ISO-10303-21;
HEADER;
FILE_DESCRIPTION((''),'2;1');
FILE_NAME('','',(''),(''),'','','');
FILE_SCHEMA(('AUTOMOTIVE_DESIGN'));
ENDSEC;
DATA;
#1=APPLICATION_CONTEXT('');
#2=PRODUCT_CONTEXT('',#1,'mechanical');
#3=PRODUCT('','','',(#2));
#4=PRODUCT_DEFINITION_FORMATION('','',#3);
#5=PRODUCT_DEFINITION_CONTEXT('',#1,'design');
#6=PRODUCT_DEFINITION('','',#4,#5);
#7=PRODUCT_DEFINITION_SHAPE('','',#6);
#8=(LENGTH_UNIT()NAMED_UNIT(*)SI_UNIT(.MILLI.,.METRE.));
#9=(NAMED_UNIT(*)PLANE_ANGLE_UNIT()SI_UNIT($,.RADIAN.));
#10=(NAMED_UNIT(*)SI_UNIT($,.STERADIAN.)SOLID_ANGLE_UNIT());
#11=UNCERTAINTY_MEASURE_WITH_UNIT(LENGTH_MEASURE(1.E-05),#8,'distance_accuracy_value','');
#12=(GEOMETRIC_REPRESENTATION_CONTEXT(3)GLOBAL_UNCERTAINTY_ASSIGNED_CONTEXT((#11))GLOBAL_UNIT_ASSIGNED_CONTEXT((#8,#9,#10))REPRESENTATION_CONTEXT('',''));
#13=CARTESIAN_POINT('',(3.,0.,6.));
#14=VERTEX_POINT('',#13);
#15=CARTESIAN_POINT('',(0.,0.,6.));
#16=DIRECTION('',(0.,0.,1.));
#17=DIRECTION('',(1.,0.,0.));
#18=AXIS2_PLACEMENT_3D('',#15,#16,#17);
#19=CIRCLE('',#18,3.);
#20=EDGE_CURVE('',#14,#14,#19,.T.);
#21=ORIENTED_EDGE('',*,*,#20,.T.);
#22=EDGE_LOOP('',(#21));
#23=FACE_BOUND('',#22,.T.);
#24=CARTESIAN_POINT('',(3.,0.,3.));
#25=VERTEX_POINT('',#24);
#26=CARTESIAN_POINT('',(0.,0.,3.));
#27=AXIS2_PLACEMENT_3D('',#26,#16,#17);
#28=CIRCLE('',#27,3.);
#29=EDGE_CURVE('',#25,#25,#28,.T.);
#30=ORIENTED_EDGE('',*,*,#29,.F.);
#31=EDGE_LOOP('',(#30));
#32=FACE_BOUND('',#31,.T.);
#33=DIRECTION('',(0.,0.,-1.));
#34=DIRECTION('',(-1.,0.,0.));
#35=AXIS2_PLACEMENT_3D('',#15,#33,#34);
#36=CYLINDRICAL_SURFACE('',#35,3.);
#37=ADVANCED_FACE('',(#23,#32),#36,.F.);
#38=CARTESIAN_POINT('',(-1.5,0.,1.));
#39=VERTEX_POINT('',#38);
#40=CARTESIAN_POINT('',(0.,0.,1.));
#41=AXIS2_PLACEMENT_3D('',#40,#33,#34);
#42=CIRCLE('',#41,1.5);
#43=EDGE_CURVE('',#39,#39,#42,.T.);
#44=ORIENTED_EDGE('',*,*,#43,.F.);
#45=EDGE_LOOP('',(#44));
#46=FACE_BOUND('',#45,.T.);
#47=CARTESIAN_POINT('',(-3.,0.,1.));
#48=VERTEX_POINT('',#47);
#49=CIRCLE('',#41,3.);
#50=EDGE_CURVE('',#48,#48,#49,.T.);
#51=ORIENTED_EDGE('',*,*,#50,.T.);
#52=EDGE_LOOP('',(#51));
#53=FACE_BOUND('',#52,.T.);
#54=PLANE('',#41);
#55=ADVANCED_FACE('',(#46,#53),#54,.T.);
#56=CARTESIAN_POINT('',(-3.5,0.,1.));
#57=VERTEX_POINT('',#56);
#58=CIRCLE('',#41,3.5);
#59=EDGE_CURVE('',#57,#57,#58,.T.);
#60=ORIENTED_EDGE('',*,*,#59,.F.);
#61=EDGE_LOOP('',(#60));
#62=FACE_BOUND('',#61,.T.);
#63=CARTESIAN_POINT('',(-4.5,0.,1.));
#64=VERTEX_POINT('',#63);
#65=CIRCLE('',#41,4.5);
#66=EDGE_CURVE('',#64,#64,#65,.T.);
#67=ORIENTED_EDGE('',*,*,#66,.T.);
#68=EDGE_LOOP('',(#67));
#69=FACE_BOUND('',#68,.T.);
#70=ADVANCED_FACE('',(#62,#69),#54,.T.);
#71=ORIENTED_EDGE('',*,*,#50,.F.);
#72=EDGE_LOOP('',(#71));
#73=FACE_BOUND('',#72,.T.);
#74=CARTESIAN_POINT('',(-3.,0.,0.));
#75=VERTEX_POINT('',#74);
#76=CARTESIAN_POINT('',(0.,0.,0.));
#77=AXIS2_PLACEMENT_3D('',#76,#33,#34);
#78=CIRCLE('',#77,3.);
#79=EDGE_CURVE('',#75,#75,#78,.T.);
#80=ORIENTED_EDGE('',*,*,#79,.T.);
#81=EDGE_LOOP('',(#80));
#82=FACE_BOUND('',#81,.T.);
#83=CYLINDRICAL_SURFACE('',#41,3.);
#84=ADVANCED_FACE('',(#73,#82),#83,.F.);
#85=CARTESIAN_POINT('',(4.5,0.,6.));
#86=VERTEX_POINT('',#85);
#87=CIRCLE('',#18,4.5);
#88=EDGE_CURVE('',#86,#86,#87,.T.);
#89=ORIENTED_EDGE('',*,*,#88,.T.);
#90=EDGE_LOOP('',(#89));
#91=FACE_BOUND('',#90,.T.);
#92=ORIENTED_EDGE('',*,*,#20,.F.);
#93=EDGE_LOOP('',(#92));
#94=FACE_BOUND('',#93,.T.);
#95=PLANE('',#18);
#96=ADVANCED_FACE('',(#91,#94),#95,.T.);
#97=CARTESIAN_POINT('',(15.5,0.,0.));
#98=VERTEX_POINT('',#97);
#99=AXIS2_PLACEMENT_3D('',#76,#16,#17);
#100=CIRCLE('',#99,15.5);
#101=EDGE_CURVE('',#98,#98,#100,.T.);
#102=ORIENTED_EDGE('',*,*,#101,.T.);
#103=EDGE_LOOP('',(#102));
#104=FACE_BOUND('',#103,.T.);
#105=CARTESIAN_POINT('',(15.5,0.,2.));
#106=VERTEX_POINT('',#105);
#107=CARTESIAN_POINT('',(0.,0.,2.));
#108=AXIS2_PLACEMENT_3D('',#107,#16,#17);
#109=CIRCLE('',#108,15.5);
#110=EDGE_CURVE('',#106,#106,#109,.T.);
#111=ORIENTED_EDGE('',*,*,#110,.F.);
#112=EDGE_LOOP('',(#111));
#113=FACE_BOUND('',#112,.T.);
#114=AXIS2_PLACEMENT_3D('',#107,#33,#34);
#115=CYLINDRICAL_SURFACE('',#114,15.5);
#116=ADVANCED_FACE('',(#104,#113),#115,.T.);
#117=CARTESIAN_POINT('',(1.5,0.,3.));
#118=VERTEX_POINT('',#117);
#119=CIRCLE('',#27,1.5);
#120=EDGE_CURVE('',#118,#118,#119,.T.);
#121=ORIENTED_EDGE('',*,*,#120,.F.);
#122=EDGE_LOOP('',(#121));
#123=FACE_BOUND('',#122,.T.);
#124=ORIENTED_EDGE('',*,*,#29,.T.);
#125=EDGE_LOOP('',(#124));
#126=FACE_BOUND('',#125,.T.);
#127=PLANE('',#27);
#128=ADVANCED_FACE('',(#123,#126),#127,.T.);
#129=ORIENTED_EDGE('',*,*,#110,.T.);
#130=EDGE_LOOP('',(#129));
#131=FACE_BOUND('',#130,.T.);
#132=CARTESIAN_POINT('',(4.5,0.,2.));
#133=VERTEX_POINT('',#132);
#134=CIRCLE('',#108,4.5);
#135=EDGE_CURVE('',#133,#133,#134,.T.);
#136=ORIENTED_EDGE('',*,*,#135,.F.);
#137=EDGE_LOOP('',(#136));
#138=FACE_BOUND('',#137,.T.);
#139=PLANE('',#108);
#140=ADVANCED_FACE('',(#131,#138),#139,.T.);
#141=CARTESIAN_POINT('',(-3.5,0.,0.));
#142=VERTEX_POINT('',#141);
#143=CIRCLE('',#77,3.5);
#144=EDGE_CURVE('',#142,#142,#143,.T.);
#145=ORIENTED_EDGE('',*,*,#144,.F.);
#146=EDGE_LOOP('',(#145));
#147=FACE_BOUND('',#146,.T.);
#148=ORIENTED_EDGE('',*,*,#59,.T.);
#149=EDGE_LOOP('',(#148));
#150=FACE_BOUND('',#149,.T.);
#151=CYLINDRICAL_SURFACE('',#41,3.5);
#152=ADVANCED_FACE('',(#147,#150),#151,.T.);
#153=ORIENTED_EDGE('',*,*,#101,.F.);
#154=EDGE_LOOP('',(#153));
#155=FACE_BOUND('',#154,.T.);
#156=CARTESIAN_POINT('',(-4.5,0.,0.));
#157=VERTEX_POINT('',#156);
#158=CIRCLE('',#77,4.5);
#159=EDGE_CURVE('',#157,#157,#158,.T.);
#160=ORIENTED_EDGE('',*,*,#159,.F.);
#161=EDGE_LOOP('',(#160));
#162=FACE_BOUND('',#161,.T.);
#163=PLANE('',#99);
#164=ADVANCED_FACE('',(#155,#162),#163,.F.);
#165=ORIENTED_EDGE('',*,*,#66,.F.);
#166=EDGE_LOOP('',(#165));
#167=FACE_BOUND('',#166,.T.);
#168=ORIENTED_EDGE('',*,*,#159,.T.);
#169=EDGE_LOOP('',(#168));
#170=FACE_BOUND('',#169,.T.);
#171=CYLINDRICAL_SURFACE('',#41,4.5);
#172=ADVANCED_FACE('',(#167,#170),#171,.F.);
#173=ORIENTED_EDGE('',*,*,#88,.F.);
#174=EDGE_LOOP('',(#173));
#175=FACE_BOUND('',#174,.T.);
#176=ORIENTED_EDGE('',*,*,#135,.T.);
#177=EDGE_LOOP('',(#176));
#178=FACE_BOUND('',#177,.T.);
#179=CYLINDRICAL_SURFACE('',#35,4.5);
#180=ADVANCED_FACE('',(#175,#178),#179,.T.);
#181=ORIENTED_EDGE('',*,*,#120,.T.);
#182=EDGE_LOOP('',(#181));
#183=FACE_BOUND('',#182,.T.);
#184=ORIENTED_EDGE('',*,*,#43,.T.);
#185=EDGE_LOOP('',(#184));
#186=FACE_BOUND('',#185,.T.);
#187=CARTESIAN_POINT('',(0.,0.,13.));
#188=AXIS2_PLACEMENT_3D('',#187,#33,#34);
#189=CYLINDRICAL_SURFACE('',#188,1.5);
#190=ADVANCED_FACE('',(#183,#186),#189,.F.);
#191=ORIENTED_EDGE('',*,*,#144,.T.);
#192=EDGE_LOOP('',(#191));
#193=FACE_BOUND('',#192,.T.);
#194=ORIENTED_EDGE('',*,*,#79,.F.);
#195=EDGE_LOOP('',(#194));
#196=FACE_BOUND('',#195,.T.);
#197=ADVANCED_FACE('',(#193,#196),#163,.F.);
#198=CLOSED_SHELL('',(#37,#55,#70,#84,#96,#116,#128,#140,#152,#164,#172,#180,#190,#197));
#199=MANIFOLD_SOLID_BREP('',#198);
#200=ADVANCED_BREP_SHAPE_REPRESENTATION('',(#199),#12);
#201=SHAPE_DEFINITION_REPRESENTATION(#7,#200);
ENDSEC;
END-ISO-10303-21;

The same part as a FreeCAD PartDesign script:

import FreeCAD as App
import Part
import Sketcher
Q = App.Units.Quantity

doc = App.newDocument("Part")
body = doc.addObject("PartDesign::Body", "Body")

# Sketch on XY plane
sketch1 = body.newObject("Sketcher::SketchObject", "Sketch")
sketch1.AttachmentSupport = (doc.getObject("XY_Plane"), [""])
sketch1.MapMode = "FlatFace"
sketch1.addGeometry(Part.Circle(App.Vector(0, 0, 0), App.Vector(0, 0, 1), 16), False)
sketch1.addConstraint([
    Sketcher.Constraint("Coincident", 0, 3, -1, 1),
    Sketcher.Constraint("Diameter", 0, Q("31 mm")),
])
pad1 = body.newObject("PartDesign::Pad", "Pad")
pad1.Profile = sketch1
pad1.Length = 2

# Sketch on XY plane
sketch2 = body.newObject("Sketcher::SketchObject", "Sketch001")
sketch2.AttachmentSupport = (doc.getObject("XY_Plane"), [""])
sketch2.MapMode = "FlatFace"
sketch2.AttachmentOffset = App.Placement(App.Vector(0, 0, 2), App.Rotation())
sketch2.addGeometry([
    Part.Circle(App.Vector(0, 0, 0), App.Vector(0, 0, 1), 4.5),
    Part.Circle(App.Vector(0, 0, 0), App.Vector(0, 0, 1), 3),
], False)
sketch2.addConstraint([
    Sketcher.Constraint("Coincident", 0, 3, -1, 1),
    Sketcher.Constraint("Coincident", 1, 3, -1, 1),
    Sketcher.Constraint("Diameter", 0, Q("9 mm")),
    Sketcher.Constraint("Diameter", 1, Q("6 mm")),
])
pad2 = body.newObject("PartDesign::Pad", "Pad001")
pad2.Profile = sketch2
pad2.Length = 4

# Sketch on XY plane
sketch3 = body.newObject("Sketcher::SketchObject", "Sketch002")
sketch3.AttachmentSupport = (doc.getObject("XY_Plane"), [""])
sketch3.MapMode = "FlatFace"
sketch3.AttachmentOffset = App.Placement(App.Vector(0, 0, 2), App.Rotation())
sketch3.addGeometry(Part.Circle(App.Vector(0, 0, 0), App.Vector(0, 0, 1), 3), False)
sketch3.addConstraint([
    Sketcher.Constraint("Coincident", 0, 3, -1, 1),
    Sketcher.Constraint("Diameter", 0, Q("6 mm")),
])
pad3 = body.newObject("PartDesign::Pad", "Pad002")
pad3.Profile = sketch3
pad3.Length = 1

# Sketch on XY plane
sketch4 = body.newObject("Sketcher::SketchObject", "Sketch003")
sketch4.AttachmentSupport = (doc.getObject("XY_Plane"), [""])
sketch4.MapMode = "FlatFace"
sketch4.addGeometry([
    Part.Circle(App.Vector(0, 0, 0), App.Vector(0, 0, 1), 4.5),
    Part.Circle(App.Vector(0, 0, 0), App.Vector(0, 0, 1), 3.5),
    Part.Circle(App.Vector(0, 0, 0), App.Vector(0, 0, 1), 3),
], False)
sketch4.addConstraint([
    Sketcher.Constraint("Coincident", 0, 3, -1, 1),
    Sketcher.Constraint("Coincident", 1, 3, -1, 1),
    Sketcher.Constraint("Coincident", 2, 3, -1, 1),
    Sketcher.Constraint("Diameter", 0, Q("9 mm")),
    Sketcher.Constraint("Diameter", 1, Q("7 mm")),
    Sketcher.Constraint("Diameter", 2, Q("6 mm")),
])
pocket1 = body.newObject("PartDesign::Pocket", "Pocket")
pocket1.Profile = sketch4
pocket1.Length = 1
pocket1.Reversed = True

# Sketch on XY plane
sketch5 = body.newObject("Sketcher::SketchObject", "Sketch004")
sketch5.AttachmentSupport = (doc.getObject("XY_Plane"), [""])
sketch5.MapMode = "FlatFace"
sketch5.AttachmentOffset = App.Placement(App.Vector(0, 0, 1), App.Rotation())
sketch5.addGeometry(Part.Circle(App.Vector(0, 0, 0), App.Vector(0, 0, 1), 1.5), False)
sketch5.addConstraint([
    Sketcher.Constraint("Coincident", 0, 3, -1, 1),
    Sketcher.Constraint("Diameter", 0, Q("3 mm")),
])
pocket2 = body.newObject("PartDesign::Pocket", "Pocket001")
pocket2.Profile = sketch5
pocket2.Length = 12
pocket2.Reversed = True

doc.recompute()
